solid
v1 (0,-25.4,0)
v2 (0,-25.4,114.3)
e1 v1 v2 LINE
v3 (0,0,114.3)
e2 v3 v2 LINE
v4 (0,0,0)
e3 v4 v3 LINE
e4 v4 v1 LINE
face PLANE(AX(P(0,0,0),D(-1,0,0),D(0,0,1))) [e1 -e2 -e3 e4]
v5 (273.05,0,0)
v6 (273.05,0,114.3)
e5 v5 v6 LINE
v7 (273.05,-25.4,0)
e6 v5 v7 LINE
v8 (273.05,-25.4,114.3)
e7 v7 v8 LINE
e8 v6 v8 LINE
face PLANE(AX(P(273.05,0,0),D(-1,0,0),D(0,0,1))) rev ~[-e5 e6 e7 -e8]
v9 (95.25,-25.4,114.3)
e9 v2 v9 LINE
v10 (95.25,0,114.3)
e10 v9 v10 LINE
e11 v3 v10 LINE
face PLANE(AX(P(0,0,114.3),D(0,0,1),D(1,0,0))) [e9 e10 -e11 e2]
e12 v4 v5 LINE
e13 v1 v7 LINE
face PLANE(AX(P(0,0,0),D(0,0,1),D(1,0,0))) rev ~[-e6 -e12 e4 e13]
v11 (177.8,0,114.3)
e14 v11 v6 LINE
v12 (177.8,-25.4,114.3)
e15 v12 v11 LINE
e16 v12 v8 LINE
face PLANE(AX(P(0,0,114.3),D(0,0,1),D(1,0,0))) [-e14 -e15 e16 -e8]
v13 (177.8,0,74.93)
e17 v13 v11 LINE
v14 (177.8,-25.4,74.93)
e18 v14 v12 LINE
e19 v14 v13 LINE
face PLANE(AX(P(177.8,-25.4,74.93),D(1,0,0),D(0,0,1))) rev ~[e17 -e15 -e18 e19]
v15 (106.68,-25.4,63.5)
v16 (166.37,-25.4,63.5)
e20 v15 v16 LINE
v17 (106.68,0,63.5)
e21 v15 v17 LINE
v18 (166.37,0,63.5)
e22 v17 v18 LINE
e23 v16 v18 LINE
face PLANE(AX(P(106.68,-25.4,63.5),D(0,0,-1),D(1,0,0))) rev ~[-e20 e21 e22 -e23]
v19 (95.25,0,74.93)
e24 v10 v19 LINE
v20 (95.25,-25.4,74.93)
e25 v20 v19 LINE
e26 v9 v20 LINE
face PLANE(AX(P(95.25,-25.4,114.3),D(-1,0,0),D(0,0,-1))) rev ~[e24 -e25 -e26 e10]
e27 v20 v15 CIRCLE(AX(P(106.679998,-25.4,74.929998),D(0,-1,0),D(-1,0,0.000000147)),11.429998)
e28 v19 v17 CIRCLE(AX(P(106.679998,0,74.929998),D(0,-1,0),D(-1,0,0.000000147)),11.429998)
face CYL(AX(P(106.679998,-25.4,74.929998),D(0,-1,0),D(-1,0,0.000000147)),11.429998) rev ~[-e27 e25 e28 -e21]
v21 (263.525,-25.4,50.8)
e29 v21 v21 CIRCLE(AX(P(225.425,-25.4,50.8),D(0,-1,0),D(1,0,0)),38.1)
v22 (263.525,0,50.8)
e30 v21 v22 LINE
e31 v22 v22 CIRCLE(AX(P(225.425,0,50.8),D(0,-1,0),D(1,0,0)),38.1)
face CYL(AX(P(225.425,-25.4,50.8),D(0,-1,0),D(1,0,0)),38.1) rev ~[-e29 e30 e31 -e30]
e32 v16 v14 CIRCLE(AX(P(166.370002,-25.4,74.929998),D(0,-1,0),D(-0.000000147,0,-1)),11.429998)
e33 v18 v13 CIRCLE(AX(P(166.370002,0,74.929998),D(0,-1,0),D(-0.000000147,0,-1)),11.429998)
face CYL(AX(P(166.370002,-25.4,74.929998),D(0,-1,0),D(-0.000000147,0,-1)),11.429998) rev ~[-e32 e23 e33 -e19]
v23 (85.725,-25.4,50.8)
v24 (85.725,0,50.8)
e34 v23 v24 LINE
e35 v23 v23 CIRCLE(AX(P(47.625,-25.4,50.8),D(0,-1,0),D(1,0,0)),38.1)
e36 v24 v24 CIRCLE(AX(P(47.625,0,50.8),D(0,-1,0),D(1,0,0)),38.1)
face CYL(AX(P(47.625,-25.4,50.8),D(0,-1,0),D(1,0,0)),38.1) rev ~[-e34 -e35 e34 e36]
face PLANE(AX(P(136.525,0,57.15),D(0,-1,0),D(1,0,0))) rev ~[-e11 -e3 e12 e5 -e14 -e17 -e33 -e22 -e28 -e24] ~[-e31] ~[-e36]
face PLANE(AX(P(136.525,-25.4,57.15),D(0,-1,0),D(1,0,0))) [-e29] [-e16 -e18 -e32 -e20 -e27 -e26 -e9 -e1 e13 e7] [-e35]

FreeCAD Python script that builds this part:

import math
import FreeCAD as App
import Part
import Sketcher
from FreeCAD import Vector
Q = App.Units.Quantity

doc = App.newDocument("Part")
body = doc.addObject("PartDesign::Body", "Body")

# Sketch on XZ plane
sketch1 = body.newObject("Sketcher::SketchObject", "Sketch")
sketch1.AttachmentSupport = (doc.getObject("XZ_Plane"), [""])
sketch1.MapMode = "FlatFace"
sketch1.addGeometry(Part.LineSegment(Vector(0, 114.3, 0), Vector(0, 0, 0)), False)
sketch1.addGeometry(Part.LineSegment(Vector(0, 0, 0), Vector(273.05, 0, 0)), False)
sketch1.addGeometry(Part.LineSegment(Vector(273.05, 0, 0), Vector(273.05, 114.3, 0)), False)
sketch1.addGeometry(Part.LineSegment(Vector(273.05, 114.3, 0), Vector(0, 114.3, 0)), False)
sketch1.addConstraint(Sketcher.Constraint("Coincident", 0, 2, 1, 1))
sketch1.addConstraint(Sketcher.Constraint("Coincident", 1, 2, 2, 1))
sketch1.addConstraint(Sketcher.Constraint("Coincident", 2, 2, 3, 1))
sketch1.addConstraint(Sketcher.Constraint("Coincident", 3, 2, 0, 1))
sketch1.addConstraint(Sketcher.Constraint("Vertical", 0))
sketch1.addConstraint(Sketcher.Constraint("Horizontal", 1))
sketch1.addConstraint(Sketcher.Constraint("Vertical", 2))
sketch1.addConstraint(Sketcher.Constraint("Horizontal", 3))
sketch1.addConstraint(Sketcher.Constraint("Coincident", 0, 2, -1, 1))
sketch1.addConstraint(Sketcher.Constraint("DistanceY", 0, 2, 0, 1, Q("4.5 in")))
sketch1.addConstraint(Sketcher.Constraint("DistanceX", 1, 1, 1, 2, Q("10.75 in")))
pad1 = body.newObject("PartDesign::Pad", "Pad")
pad1.Profile = sketch1
pad1.Length = Q("1 in")

# Sketch on XZ plane
sketch2 = body.newObject("Sketcher::SketchObject", "Sketch001")
sketch2.AttachmentSupport = (doc.getObject("XZ_Plane"), [""])
sketch2.MapMode = "FlatFace"
sketch2.AttachmentOffset = App.Placement(Vector(0, 0, 1 * 25.4), App.Rotation())
sketch2.addGeometry(Part.Circle(Vector(47.625, 50.8, 0), Vector(0, 0, 1), 38.1), False)
sketch2.addGeometry(Part.Circle(Vector(225.425, 50.8, 0), Vector(0, 0, 1), 38.1), False)
sketch2.addConstraint(Sketcher.Constraint("Equal", 0, 1))
sketch2.addConstraint(Sketcher.Constraint("Horizontal", 0, 3, 1, 3))
sketch2.addConstraint(Sketcher.Constraint("Diameter", 0, Q("3 in")))
sketch2.addConstraint(Sketcher.Constraint("DistanceY", -1, 1, 0, 3, Q("2 in")))
sketch2.addConstraint(Sketcher.Constraint("DistanceX", 0, 3, 1, 3, Q("7 in")))
sketch2.addConstraint(Sketcher.Constraint("DistanceX", -1, 1, 0, 3, Q("1.875 in")))
pocket1 = body.newObject("PartDesign::Pocket", "Pocket")
pocket1.Profile = sketch2
pocket1.Length = Q("1 in")

# Sketch on XZ plane
sketch3 = body.newObject("Sketcher::SketchObject", "Sketch002")
sketch3.AttachmentSupport = (doc.getObject("XZ_Plane"), [""])
sketch3.MapMode = "FlatFace"
sketch3.AttachmentOffset = App.Placement(Vector(0, 0, 1 * 25.4), App.Rotation())
sketch3.addGeometry(Part.LineSegment(Vector(177.8, 114.3, 0), Vector(95.25, 114.3, 0)), False)
sketch3.addGeometry(Part.LineSegment(Vector(95.25, 114.3, 0), Vector(95.25, 74.93, 0)), False)
sketch3.addGeometry(Part.ArcOfCircle(Part.Circle(Vector(106.679998, 74.929998, 0), Vector(0, 0, 1), 11.429998), math.radians(179.999992), math.radians(270.000008)), False)
sketch3.addGeometry(Part.LineSegment(Vector(106.68, 63.5, 0), Vector(166.37, 63.5, 0)), False)
sketch3.addGeometry(Part.ArcOfCircle(Part.Circle(Vector(166.370002, 74.929998, 0), Vector(0, 0, 1), 11.429998), math.radians(-90.000008), math.radians(0.000008)), False)
sketch3.addGeometry(Part.LineSegment(Vector(177.8, 74.93, 0), Vector(177.8, 114.3, 0)), False)
sketch3.addConstraint(Sketcher.Constraint("Coincident", 0, 2, 1, 1))
sketch3.addConstraint(Sketcher.Constraint("Tangent", 1, 2, 2, 1))
sketch3.addConstraint(Sketcher.Constraint("Tangent", 2, 2, 3, 1))
sketch3.addConstraint(Sketcher.Constraint("Tangent", 3, 2, 4, 1))
sketch3.addConstraint(Sketcher.Constraint("Tangent", 4, 2, 5, 1))
sketch3.addConstraint(Sketcher.Constraint("Coincident", 5, 2, 0, 1))
sketch3.addConstraint(Sketcher.Constraint("Horizontal", 0))
sketch3.addConstraint(Sketcher.Constraint("Vertical", 1))
sketch3.addConstraint(Sketcher.Constraint("Horizontal", 3))
sketch3.addConstraint(Sketcher.Constraint("Vertical", 5))
sketch3.addConstraint(Sketcher.Constraint("Equal", 2, 4))
sketch3.addConstraint(Sketcher.Constraint("Radius", 2, Q("0.4499999 in")))
sketch3.addConstraint(Sketcher.Constraint("DistanceX", -1, 1, 4, 2, Q("7 in")))
sketch3.addConstraint(Sketcher.Constraint("DistanceY", 2, 2, 0, 2, Q("2 in")))
sketch3.addConstraint(Sketcher.Constraint("DistanceX", 0, 2, 0, 1, Q("3.25 in")))
sketch3.addConstraint(Sketcher.Constraint("DistanceY", -1, 1, 0, 2, Q("4.5 in")))
pocket2 = body.newObject("PartDesign::Pocket", "Pocket001")
pocket2.Profile = sketch3
pocket2.Length = Q("1 in")

doc.recompute()
